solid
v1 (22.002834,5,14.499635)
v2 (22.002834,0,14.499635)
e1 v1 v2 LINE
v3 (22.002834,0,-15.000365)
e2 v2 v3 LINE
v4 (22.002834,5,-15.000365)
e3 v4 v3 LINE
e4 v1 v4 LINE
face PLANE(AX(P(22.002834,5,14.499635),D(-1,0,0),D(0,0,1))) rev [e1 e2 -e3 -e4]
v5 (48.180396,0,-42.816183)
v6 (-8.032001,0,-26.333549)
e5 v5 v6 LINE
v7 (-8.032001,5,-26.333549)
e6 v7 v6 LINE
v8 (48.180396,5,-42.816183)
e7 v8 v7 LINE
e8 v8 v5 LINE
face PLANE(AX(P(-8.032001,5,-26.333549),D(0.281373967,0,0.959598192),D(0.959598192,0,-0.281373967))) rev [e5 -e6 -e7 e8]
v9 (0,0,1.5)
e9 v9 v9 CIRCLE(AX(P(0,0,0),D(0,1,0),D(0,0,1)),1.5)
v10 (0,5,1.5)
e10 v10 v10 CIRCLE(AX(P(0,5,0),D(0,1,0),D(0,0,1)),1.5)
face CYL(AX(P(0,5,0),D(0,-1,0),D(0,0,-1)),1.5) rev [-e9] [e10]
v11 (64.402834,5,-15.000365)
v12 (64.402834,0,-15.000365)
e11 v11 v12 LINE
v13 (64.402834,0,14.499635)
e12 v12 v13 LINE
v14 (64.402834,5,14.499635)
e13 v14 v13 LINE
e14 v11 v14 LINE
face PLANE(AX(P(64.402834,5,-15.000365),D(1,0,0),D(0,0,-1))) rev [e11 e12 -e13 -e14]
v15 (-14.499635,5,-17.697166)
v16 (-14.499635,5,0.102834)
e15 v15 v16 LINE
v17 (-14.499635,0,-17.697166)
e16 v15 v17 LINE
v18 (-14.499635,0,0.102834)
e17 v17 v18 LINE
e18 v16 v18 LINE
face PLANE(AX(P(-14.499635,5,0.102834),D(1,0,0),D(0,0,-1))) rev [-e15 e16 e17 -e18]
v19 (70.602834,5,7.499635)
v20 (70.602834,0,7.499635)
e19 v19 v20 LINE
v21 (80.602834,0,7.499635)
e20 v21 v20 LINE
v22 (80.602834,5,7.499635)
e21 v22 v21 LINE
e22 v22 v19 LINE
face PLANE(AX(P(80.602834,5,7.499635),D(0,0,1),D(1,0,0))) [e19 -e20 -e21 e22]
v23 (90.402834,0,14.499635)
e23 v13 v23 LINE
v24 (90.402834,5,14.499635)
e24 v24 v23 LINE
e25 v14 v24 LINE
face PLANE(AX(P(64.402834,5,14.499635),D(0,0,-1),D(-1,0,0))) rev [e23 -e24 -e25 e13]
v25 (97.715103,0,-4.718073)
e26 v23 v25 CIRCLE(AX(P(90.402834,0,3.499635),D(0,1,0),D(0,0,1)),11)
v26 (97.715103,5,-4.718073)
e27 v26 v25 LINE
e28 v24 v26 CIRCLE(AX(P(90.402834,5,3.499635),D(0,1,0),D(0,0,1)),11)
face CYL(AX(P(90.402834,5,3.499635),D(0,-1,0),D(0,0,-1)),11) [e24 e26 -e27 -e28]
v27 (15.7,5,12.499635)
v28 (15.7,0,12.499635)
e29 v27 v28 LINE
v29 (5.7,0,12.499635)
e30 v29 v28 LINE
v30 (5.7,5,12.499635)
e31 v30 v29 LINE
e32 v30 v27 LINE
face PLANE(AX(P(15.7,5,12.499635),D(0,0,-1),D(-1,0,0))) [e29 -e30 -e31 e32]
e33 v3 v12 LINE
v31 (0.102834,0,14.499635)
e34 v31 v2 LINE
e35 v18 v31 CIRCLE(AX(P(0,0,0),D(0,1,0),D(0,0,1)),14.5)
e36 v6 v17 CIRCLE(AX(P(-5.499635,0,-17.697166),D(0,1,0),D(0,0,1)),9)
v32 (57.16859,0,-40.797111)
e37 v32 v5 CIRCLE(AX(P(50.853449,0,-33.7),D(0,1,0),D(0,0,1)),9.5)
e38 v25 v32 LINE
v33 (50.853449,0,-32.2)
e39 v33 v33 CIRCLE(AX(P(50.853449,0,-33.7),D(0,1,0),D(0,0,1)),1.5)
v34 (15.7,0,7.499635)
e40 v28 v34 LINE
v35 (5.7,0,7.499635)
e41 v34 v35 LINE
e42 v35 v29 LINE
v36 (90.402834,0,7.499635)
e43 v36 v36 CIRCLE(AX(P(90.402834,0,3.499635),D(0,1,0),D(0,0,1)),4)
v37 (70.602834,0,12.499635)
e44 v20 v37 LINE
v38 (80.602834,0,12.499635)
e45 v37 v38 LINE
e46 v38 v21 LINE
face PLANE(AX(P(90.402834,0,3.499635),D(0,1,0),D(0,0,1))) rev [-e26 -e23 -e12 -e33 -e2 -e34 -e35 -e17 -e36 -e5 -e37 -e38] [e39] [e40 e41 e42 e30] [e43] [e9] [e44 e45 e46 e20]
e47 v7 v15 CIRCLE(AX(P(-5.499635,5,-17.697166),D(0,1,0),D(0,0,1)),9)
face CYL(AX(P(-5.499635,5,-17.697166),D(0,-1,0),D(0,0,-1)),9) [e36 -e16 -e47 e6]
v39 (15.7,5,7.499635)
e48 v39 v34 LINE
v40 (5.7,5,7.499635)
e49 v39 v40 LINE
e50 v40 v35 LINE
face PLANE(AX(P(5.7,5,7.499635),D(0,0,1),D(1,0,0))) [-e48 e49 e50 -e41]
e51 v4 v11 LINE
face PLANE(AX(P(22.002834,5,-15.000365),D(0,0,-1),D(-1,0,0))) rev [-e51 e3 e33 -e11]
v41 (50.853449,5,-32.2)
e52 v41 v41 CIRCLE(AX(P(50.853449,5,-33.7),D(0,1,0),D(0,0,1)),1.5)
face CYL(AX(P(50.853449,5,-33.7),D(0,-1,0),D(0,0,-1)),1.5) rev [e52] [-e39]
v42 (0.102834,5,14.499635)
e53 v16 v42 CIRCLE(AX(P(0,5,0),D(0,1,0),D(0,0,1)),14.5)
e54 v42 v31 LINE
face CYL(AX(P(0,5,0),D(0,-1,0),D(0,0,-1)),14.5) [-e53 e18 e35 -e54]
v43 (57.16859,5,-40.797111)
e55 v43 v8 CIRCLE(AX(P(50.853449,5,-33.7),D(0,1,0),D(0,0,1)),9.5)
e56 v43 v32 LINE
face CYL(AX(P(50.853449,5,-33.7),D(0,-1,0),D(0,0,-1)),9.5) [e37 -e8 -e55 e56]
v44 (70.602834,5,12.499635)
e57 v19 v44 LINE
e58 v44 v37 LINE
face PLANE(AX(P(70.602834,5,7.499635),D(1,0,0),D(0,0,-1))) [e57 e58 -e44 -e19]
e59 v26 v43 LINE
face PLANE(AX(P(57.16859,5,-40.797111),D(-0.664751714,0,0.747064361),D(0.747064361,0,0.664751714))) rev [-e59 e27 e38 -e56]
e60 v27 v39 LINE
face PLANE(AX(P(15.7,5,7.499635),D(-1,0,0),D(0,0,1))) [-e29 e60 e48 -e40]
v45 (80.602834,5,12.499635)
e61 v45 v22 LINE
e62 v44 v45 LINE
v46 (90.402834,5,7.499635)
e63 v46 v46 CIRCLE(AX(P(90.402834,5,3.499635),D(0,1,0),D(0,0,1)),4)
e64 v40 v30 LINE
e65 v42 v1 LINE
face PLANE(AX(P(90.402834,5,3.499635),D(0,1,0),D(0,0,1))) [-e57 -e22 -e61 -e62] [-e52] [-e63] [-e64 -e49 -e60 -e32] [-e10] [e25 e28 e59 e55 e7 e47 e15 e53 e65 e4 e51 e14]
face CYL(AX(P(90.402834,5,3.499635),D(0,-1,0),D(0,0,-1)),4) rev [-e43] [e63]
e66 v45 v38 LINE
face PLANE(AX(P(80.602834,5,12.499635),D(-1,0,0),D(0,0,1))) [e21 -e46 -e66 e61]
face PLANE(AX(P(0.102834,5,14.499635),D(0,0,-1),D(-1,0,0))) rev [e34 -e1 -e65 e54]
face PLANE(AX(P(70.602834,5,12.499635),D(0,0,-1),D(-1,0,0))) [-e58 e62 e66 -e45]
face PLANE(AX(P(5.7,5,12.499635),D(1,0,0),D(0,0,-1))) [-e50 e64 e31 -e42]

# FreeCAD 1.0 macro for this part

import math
import FreeCAD as App
import Part
import Sketcher
from FreeCAD import Vector


def add_polygon(sketch, points):
    """Adds a closed chain of lines whose ends are joined by coincident constraints."""
    first, n = sketch.GeometryCount, len(points)
    for a, b in zip(points, points[1:] + points[:1]):
        sketch.addGeometry(Part.LineSegment(App.Vector(*a, 0), App.Vector(*b, 0)), False)
    for i in range(n):
        sketch.addConstraint(Sketcher.Constraint("Coincident", first + i, 2, first + (i + 1) % n, 1))

doc = App.newDocument("Part")
body = doc.addObject("PartDesign::Body", "Body")

sketch1 = body.newObject("Sketcher::SketchObject", "Sketch")
sketch1.AttachmentSupport = (doc.getObject("XZ_Plane"), [""])
sketch1.MapMode = "FlatFace"
sketch1.addGeometry(Part.LineSegment(Vector(0.1, 14.5, 0), Vector(22, 14.5, 0)), False)
sketch1.addGeometry(Part.LineSegment(Vector(22, 14.5, 0), Vector(22, -15, 0)), False)
sketch1.addGeometry(Part.LineSegment(Vector(22, -15, 0), Vector(64.4, -15, 0)), False)
sketch1.addGeometry(Part.LineSegment(Vector(64.4, -15, 0), Vector(64.4, 14.5, 0)), False)
sketch1.addGeometry(Part.LineSegment(Vector(64.4, 14.5, 0), Vector(90.4, 14.5, 0)), False)
sketch1.addGeometry(Part.ArcOfCircle(Part.Circle(Vector(90.4, 3.5, 0), Vector(0, 0, 1), 11), math.radians(-48), math.radians(90)), False)
sketch1.addGeometry(Part.LineSegment(Vector(97.7, -4.7, 0), Vector(57.2, -40.8, 0)), False)
sketch1.addGeometry(Part.ArcOfCircle(Part.Circle(Vector(50.9, -33.7, 0), Vector(0, 0, 1), 9.5), math.radians(-106), math.radians(-48)), False)
sketch1.addGeometry(Part.LineSegment(Vector(48.2, -42.8, 0), Vector(-8, -26.3, 0)), False)
sketch1.addGeometry(Part.ArcOfCircle(Part.Circle(Vector(-5.5, -17.7, 0), Vector(0, 0, 1), 9), math.radians(-180), math.radians(-106)), False)
sketch1.addGeometry(Part.LineSegment(Vector(-14.5, -17.7, 0), Vector(-14.5, 0.1, 0)), False)
sketch1.addGeometry(Part.ArcOfCircle(Part.Circle(Vector(0, 0, 0), Vector(0, 0, 1), 14.5), math.radians(90), math.radians(180)), False)
add_polygon(sketch1, [(15.7, 12.5), (5.7, 12.5), (5.7, 7.5), (15.7, 7.5)])
sketch1.addGeometry(Part.Circle(Vector(0, 0, 0), Vector(0, 0, 1), 1.5), False)
add_polygon(sketch1, [(80.6, 12.5), (70.6, 12.5), (70.6, 7.5), (80.6, 7.5)])
sketch1.addGeometry(Part.Circle(Vector(90.4, 3.5, 0), Vector(0, 0, 1), 4), False)
sketch1.addGeometry(Part.Circle(Vector(50.9, -33.7, 0), Vector(0, 0, 1), 1.5), False)
sketch1.addConstraint(Sketcher.Constraint("Coincident", 0, 2, 1, 1))
sketch1.addConstraint(Sketcher.Constraint("Coincident", 1, 2, 2, 1))
sketch1.addConstraint(Sketcher.Constraint("Coincident", 2, 2, 3, 1))
sketch1.addConstraint(Sketcher.Constraint("Coincident", 3, 2, 4, 1))
sketch1.addConstraint(Sketcher.Constraint("Tangent", 4, 2, 5, 2))
sketch1.addConstraint(Sketcher.Constraint("Tangent", 5, 1, 6, 1))
sketch1.addConstraint(Sketcher.Constraint("Tangent", 6, 2, 7, 2))
sketch1.addConstraint(Sketcher.Constraint("Tangent", 7, 1, 8, 1))
sketch1.addConstraint(Sketcher.Constraint("Tangent", 8, 2, 9, 2))
sketch1.addConstraint(Sketcher.Constraint("Tangent", 9, 1, 10, 1))
sketch1.addConstraint(Sketcher.Constraint("Coincident", 10, 2, 11, 2))
sketch1.addConstraint(Sketcher.Constraint("Coincident", 11, 1, 0, 1))
sketch1.addConstraint(Sketcher.Constraint("Horizontal", 0))
sketch1.addConstraint(Sketcher.Constraint("Vertical", 1))
sketch1.addConstraint(Sketcher.Constraint("Horizontal", 2))
sketch1.addConstraint(Sketcher.Constraint("Vertical", 3))
sketch1.addConstraint(Sketcher.Constraint("Horizontal", 4))
sketch1.addConstraint(Sketcher.Constraint("Vertical", 10))
sketch1.addConstraint(Sketcher.Constraint("Horizontal", 12))
sketch1.addConstraint(Sketcher.Constraint("Vertical", 13))
sketch1.addConstraint(Sketcher.Constraint("Horizontal", 14))
sketch1.addConstraint(Sketcher.Constraint("Vertical", 15))
sketch1.addConstraint(Sketcher.Constraint("Horizontal", 17))
sketch1.addConstraint(Sketcher.Constraint("Vertical", 18))
sketch1.addConstraint(Sketcher.Constraint("Horizontal", 19))
sketch1.addConstraint(Sketcher.Constraint("Vertical", 20))
sketch1.addConstraint(Sketcher.Constraint("Coincident", 11, 3, -1, 1))
sketch1.addConstraint(Sketcher.Constraint("Coincident", 16, 3, -1, 1))
sketch1.addConstraint(Sketcher.Constraint("Coincident", 21, 3, 5, 3))
sketch1.addConstraint(Sketcher.Constraint("Coincident", 22, 3, 7, 3))
sketch1.addConstraint(Sketcher.Constraint("Equal", 16, 22))
sketch1.addConstraint(Sketcher.Constraint("Horizontal", 0, 2, 3, 2))
sketch1.addConstraint(Sketcher.Constraint("Horizontal", 15, 2, 17, 2))
sketch1.addConstraint(Sketcher.Constraint("Horizontal", 14, 2, 18, 2))
sketch1.addConstraint(Sketcher.Constraint("Equal", 14, 17))
sketch1.addConstraint(Sketcher.Constraint("Diameter", 16, 3.0))
sketch1.addConstraint(Sketcher.Constraint("Diameter", 21, 8.0))
sketch1.addConstraint(Sketcher.Constraint("Radius", 5, 11.0))
sketch1.addConstraint(Sketcher.Constraint("Radius", 9, 9.0))
sketch1.addConstraint(Sketcher.Constraint("Radius", 7, 9.5))
sketch1.addConstraint(Sketcher.Constraint("Radius", 11, 14.5))
sketch1.addConstraint(Sketcher.Constraint("DistanceX", 4, 1, 4, 2, 26.0))
sketch1.addConstraint(Sketcher.Constraint("DistanceX", 12, 2, 12, 1, 10.0))
sketch1.addConstraint(Sketcher.Constraint("DistanceY", 13, 2, 13, 1, 5.0))
sketch1.addConstraint(Sketcher.Constraint("DistanceX", 0, 1, 0, 2, 21.9))
sketch1.addConstraint(Sketcher.Constraint("DistanceX", 2, 1, 2, 2, 42.4))
sketch1.addConstraint(Sketcher.Constraint("DistanceY", 1, 2, 1, 1, 29.5))
sketch1.addConstraint(Sketcher.Constraint("DistanceY", 10, 1, 10, 2, 17.8))
sketch1.addConstraint(Sketcher.Constraint("DistanceY", 12, 2, 11, 1, 2.0))
sketch1.addConstraint(Sketcher.Constraint("DistanceY", 7, 3, -1, 1, 33.7))
sketch1.addConstraint(Sketcher.Constraint("DistanceX", -1, 1, 12, 2, 5.7))
sketch1.addConstraint(Sketcher.Constraint("DistanceX", 3, 2, 17, 2, 6.2))
sketch1.addConstraint(Sketcher.Constraint("DistanceX", 8, 2, -1, 1, 8.032001))
sketch1.addConstraint(Sketcher.Constraint("Distance", 8, 58.579099))
sketch1.addConstraint(Sketcher.Constraint("DistanceX", -1, 1, 6, 2, 57.16859))
pad1 = body.newObject("PartDesign::Pad", "Pad")
pad1.Profile = sketch1
pad1.Length = 5
pad1.Reversed = True

doc.recompute()
